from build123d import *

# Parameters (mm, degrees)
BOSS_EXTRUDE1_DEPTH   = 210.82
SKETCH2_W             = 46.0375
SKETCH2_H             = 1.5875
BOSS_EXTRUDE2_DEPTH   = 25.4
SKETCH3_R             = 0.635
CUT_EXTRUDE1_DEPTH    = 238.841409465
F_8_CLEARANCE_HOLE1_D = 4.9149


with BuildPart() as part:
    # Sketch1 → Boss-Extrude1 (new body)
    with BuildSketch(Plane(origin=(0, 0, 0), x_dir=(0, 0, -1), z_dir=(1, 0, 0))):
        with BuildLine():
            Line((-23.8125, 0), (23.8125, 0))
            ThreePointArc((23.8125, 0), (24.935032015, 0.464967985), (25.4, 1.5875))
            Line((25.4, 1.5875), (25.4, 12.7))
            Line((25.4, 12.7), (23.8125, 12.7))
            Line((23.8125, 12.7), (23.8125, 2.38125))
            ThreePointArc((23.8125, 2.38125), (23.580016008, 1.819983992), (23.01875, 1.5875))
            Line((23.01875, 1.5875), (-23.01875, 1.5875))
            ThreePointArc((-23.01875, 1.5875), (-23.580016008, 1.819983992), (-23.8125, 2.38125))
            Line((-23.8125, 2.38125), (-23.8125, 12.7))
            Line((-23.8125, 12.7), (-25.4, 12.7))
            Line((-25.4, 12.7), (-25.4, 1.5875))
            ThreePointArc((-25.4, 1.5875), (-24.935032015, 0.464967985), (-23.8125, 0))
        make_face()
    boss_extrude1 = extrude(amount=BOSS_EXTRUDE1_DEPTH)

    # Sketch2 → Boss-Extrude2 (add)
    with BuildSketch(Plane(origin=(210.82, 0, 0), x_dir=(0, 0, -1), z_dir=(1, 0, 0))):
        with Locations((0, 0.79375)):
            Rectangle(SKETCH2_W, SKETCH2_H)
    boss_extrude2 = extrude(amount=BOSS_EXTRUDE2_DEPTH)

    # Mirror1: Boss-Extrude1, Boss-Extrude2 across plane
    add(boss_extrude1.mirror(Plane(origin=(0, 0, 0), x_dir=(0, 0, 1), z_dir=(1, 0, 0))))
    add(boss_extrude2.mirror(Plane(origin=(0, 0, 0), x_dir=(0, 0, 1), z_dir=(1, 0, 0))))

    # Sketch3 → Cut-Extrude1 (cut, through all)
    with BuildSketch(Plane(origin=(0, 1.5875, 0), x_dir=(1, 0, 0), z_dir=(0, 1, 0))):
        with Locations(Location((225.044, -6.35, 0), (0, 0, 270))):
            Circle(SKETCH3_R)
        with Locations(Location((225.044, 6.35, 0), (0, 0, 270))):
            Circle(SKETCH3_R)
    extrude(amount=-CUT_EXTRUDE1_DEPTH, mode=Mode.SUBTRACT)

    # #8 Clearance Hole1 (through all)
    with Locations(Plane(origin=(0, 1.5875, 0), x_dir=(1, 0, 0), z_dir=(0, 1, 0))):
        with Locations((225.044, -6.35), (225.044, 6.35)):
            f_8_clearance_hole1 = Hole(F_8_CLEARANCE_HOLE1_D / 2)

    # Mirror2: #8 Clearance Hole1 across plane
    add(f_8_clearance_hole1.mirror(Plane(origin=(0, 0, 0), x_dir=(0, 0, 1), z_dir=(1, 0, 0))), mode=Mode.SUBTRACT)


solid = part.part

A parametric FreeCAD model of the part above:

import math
import FreeCAD as App
import Part
import Sketcher
Q = App.Units.Quantity


def add_polygon(sketch, points):
    """Adds a closed chain of lines whose ends are joined by coincident constraints."""
    first, n = sketch.GeometryCount, len(points)
    for a, b in zip(points, points[1:] + points[:1]):
        sketch.addGeometry(Part.LineSegment(App.Vector(*a, 0), App.Vector(*b, 0)), False)
    for i in range(n):
        sketch.addConstraint(Sketcher.Constraint("Coincident", first + i, 2, first + (i + 1) % n, 1))

doc = App.newDocument("Part")
body = doc.addObject("PartDesign::Body", "Body")

# Sketch on YZ plane
sketch1 = body.newObject("Sketcher::SketchObject", "Sketch")
sketch1.AttachmentSupport = (doc.getObject("YZ_Plane"), [""])
sketch1.MapMode = "FlatFace"
sketch1.addGeometry(Part.LineSegment(App.Vector(0, 23.8125, 0), App.Vector(0, -23.8125, 0)), False)
sketch1.addGeometry(Part.ArcOfCircle(Part.Circle(App.Vector(1.5875, -23.8125, 0), App.Vector(0, 0, 1), 1.5875), math.radians(180), math.radians(270)), False)
sketch1.addGeometry(Part.LineSegment(App.Vector(1.5875, -25.4, 0), App.Vector(12.7, -25.4, 0)), False)
sketch1.addGeometry(Part.LineSegment(App.Vector(12.7, -25.4, 0), App.Vector(12.7, -23.8125, 0)), False)
sketch1.addGeometry(Part.LineSegment(App.Vector(12.7, -23.8125, 0), App.Vector(2.38125, -23.8125, 0)), False)
sketch1.addGeometry(Part.ArcOfCircle(Part.Circle(App.Vector(2.38125, -23.01875, 0), App.Vector(0, 0, 1), 0.79375), math.radians(180), math.radians(270)), False)
sketch1.addGeometry(Part.LineSegment(App.Vector(1.5875, -23.01875, 0), App.Vector(1.5875, 23.01875, 0)), False)
sketch1.addGeometry(Part.ArcOfCircle(Part.Circle(App.Vector(2.38125, 23.01875, 0), App.Vector(0, 0, 1), 0.79375), math.radians(90), math.radians(180)), False)
sketch1.addGeometry(Part.LineSegment(App.Vector(2.38125, 23.8125, 0), App.Vector(12.7, 23.8125, 0)), False)
sketch1.addGeometry(Part.LineSegment(App.Vector(12.7, 23.8125, 0), App.Vector(12.7, 25.4, 0)), False)
sketch1.addGeometry(Part.LineSegment(App.Vector(12.7, 25.4, 0), App.Vector(1.5875, 25.4, 0)), False)
sketch1.addGeometry(Part.ArcOfCircle(Part.Circle(App.Vector(1.5875, 23.8125, 0), App.Vector(0, 0, 1), 1.5875), math.radians(90), math.radians(180)), False)
sketch1.addConstraint(Sketcher.Constraint("Tangent", 0, 2, 1, 1))
sketch1.addConstraint(Sketcher.Constraint("Tangent", 1, 2, 2, 1))
sketch1.addConstraint(Sketcher.Constraint("Coincident", 2, 2, 3, 1))
sketch1.addConstraint(Sketcher.Constraint("Coincident", 3, 2, 4, 1))
sketch1.addConstraint(Sketcher.Constraint("Tangent", 4, 2, 5, 2))
sketch1.addConstraint(Sketcher.Constraint("Tangent", 5, 1, 6, 1))
sketch1.addConstraint(Sketcher.Constraint("Tangent", 6, 2, 7, 2))
sketch1.addConstraint(Sketcher.Constraint("Tangent", 7, 1, 8, 1))
sketch1.addConstraint(Sketcher.Constraint("Coincident", 8, 2, 9, 1))
sketch1.addConstraint(Sketcher.Constraint("Coincident", 9, 2, 10, 1))
sketch1.addConstraint(Sketcher.Constraint("Tangent", 10, 2, 11, 1))
sketch1.addConstraint(Sketcher.Constraint("Tangent", 11, 2, 0, 1))
sketch1.addConstraint(Sketcher.Constraint("Vertical", 0))
sketch1.addConstraint(Sketcher.Constraint("Horizontal", 2))
sketch1.addConstraint(Sketcher.Constraint("Vertical", 3))
sketch1.addConstraint(Sketcher.Constraint("Horizontal", 4))
sketch1.addConstraint(Sketcher.Constraint("Vertical", 6))
sketch1.addConstraint(Sketcher.Constraint("Horizontal", 8))
sketch1.addConstraint(Sketcher.Constraint("Vertical", 9))
sketch1.addConstraint(Sketcher.Constraint("Horizontal", 10))
sketch1.addConstraint(Sketcher.Constraint("Equal", 5, 7))
sketch1.addConstraint(Sketcher.Constraint("Equal", 1, 11))
sketch1.addConstraint(Sketcher.Constraint("Symmetric", 0, 2, 11, 2, -1, 1))
sketch1.addConstraint(Sketcher.Constraint("Symmetric", 3, 2, 8, 2, -1))
sketch1.addConstraint(Sketcher.Constraint("Horizontal", 0, 2, 3, 2))
sketch1.addConstraint(Sketcher.Constraint("Vertical", 1, 2, 5, 1))
sketch1.addConstraint(Sketcher.Constraint("DistanceY", 1, 2, -1, 1, Q("1 in")))
sketch1.addConstraint(Sketcher.Constraint("Radius", 1, Q("0.0625 in")))
sketch1.addConstraint(Sketcher.Constraint("Radius", 5, Q("0.03125 in")))
sketch1.addConstraint(Sketcher.Constraint("DistanceX", -1, 1, 2, 2, Q("0.5 in")))
pad1 = body.newObject("PartDesign::Pad", "Pad")
pad1.Profile = sketch1
pad1.Length = Q("8.3 in")

# Sketch on YZ plane
sketch2 = body.newObject("Sketcher::SketchObject", "Sketch001")
sketch2.AttachmentSupport = (doc.getObject("YZ_Plane"), [""])
sketch2.MapMode = "FlatFace"
sketch2.AttachmentOffset = App.Placement(App.Vector(0, 0, 8.3 * 25.4), App.Rotation())
add_polygon(sketch2, [(1.5875, 23.01875), (0, 23.01875), (0, -23.01875), (1.5875, -23.01875)])  # lines 0-3
sketch2.addConstraint(Sketcher.Constraint("Horizontal", 0))
sketch2.addConstraint(Sketcher.Constraint("Vertical", 1))
sketch2.addConstraint(Sketcher.Constraint("Horizontal", 2))
sketch2.addConstraint(Sketcher.Constraint("Vertical", 3))
sketch2.addConstraint(Sketcher.Constraint("Symmetric", 0, 2, 1, 2, -1, 1))
sketch2.addConstraint(Sketcher.Constraint("DistanceX", 0, 2, 0, 1, Q("0.0625 in")))
sketch2.addConstraint(Sketcher.Constraint("DistanceY", 1, 2, 1, 1, Q("1.8125 in")))
pad2 = body.newObject("PartDesign::Pad", "Pad001")
pad2.Profile = sketch2
pad2.Length = Q("1 in")
doc.recompute()

mirrored = body.newObject("PartDesign::Mirrored", "Mirrored")
mirrored.Originals = [pad1, pad2]
mirrored.MirrorPlane = (doc.getObject("YZ_Plane"), [""])
body.Tip = mirrored

# Sketch on XZ plane
sketch3 = body.newObject("Sketcher::SketchObject", "Sketch002")
sketch3.AttachmentSupport = (doc.getObject("XZ_Plane"), [""])
sketch3.MapMode = "FlatFace"
sketch3.AttachmentOffset = App.Placement(App.Vector(0, 0, -0.0625 * 25.4), App.Rotation())
sketch3.addGeometry(Part.Circle(App.Vector(225.044, 6.35, 0), App.Vector(0, 0, 1), 0.635), False)
sketch3.addGeometry(Part.Circle(App.Vector(225.044, -6.35, 0), App.Vector(0, 0, 1), 0.635), False)
sketch3.addConstraint(Sketcher.Constraint("Equal", 0, 1))
sketch3.addConstraint(Sketcher.Constraint("Symmetric", 0, 3, 1, 3, -1))
sketch3.addConstraint(Sketcher.Constraint("Diameter", 0, Q("0.05 in")))
sketch3.addConstraint(Sketcher.Constraint("DistanceY", 1, 3, 0, 3, Q("0.5 in")))
sketch3.addConstraint(Sketcher.Constraint("DistanceX", -1, 1, 0, 3, Q("8.86 in")))
pocket1 = body.newObject("PartDesign::Pocket", "Pocket")
pocket1.Profile = sketch3
pocket1.Type = "ThroughAll"
pocket1.Reversed = True

# Sketch on XZ plane
sketch4 = body.newObject("Sketcher::SketchObject", "Sketch003")
sketch4.AttachmentSupport = (doc.getObject("XZ_Plane"), [""])
sketch4.MapMode = "FlatFace"
sketch4.AttachmentOffset = App.Placement(App.Vector(0, 0, -0.0625 * 25.4), App.Rotation())
sketch4.addGeometry(Part.Circle(App.Vector(225.044, 6.35, 0), App.Vector(0, 0, 1), 2.45745), False)
sketch4.addGeometry(Part.Circle(App.Vector(225.044, -6.35, 0), App.Vector(0, 0, 1), 2.45745), False)
sketch4.addConstraint(Sketcher.Constraint("Equal", 0, 1))
sketch4.addConstraint(Sketcher.Constraint("Symmetric", 0, 3, 1, 3, -1))
sketch4.addConstraint(Sketcher.Constraint("Diameter", 0, Q("0.1935 in")))
sketch4.addConstraint(Sketcher.Constraint("DistanceY", 1, 3, 0, 3, Q("0.5 in")))
sketch4.addConstraint(Sketcher.Constraint("DistanceX", -1, 1, 0, 3, Q("8.86 in")))
doc.recompute()
hole = body.newObject("PartDesign::Hole", "Hole")
hole.Profile = sketch4
hole.ThreadType = "None"
hole.Diameter = Q("0.1935 in")
hole.DepthType = "ThroughAll"
hole.Reversed = True
doc.recompute()

mirrored2 = body.newObject("PartDesign::Mirrored", "Mirrored001")
mirrored2.Originals = [hole]
mirrored2.MirrorPlane = (doc.getObject("YZ_Plane"), [""])
body.Tip = mirrored2

doc.recompute()
